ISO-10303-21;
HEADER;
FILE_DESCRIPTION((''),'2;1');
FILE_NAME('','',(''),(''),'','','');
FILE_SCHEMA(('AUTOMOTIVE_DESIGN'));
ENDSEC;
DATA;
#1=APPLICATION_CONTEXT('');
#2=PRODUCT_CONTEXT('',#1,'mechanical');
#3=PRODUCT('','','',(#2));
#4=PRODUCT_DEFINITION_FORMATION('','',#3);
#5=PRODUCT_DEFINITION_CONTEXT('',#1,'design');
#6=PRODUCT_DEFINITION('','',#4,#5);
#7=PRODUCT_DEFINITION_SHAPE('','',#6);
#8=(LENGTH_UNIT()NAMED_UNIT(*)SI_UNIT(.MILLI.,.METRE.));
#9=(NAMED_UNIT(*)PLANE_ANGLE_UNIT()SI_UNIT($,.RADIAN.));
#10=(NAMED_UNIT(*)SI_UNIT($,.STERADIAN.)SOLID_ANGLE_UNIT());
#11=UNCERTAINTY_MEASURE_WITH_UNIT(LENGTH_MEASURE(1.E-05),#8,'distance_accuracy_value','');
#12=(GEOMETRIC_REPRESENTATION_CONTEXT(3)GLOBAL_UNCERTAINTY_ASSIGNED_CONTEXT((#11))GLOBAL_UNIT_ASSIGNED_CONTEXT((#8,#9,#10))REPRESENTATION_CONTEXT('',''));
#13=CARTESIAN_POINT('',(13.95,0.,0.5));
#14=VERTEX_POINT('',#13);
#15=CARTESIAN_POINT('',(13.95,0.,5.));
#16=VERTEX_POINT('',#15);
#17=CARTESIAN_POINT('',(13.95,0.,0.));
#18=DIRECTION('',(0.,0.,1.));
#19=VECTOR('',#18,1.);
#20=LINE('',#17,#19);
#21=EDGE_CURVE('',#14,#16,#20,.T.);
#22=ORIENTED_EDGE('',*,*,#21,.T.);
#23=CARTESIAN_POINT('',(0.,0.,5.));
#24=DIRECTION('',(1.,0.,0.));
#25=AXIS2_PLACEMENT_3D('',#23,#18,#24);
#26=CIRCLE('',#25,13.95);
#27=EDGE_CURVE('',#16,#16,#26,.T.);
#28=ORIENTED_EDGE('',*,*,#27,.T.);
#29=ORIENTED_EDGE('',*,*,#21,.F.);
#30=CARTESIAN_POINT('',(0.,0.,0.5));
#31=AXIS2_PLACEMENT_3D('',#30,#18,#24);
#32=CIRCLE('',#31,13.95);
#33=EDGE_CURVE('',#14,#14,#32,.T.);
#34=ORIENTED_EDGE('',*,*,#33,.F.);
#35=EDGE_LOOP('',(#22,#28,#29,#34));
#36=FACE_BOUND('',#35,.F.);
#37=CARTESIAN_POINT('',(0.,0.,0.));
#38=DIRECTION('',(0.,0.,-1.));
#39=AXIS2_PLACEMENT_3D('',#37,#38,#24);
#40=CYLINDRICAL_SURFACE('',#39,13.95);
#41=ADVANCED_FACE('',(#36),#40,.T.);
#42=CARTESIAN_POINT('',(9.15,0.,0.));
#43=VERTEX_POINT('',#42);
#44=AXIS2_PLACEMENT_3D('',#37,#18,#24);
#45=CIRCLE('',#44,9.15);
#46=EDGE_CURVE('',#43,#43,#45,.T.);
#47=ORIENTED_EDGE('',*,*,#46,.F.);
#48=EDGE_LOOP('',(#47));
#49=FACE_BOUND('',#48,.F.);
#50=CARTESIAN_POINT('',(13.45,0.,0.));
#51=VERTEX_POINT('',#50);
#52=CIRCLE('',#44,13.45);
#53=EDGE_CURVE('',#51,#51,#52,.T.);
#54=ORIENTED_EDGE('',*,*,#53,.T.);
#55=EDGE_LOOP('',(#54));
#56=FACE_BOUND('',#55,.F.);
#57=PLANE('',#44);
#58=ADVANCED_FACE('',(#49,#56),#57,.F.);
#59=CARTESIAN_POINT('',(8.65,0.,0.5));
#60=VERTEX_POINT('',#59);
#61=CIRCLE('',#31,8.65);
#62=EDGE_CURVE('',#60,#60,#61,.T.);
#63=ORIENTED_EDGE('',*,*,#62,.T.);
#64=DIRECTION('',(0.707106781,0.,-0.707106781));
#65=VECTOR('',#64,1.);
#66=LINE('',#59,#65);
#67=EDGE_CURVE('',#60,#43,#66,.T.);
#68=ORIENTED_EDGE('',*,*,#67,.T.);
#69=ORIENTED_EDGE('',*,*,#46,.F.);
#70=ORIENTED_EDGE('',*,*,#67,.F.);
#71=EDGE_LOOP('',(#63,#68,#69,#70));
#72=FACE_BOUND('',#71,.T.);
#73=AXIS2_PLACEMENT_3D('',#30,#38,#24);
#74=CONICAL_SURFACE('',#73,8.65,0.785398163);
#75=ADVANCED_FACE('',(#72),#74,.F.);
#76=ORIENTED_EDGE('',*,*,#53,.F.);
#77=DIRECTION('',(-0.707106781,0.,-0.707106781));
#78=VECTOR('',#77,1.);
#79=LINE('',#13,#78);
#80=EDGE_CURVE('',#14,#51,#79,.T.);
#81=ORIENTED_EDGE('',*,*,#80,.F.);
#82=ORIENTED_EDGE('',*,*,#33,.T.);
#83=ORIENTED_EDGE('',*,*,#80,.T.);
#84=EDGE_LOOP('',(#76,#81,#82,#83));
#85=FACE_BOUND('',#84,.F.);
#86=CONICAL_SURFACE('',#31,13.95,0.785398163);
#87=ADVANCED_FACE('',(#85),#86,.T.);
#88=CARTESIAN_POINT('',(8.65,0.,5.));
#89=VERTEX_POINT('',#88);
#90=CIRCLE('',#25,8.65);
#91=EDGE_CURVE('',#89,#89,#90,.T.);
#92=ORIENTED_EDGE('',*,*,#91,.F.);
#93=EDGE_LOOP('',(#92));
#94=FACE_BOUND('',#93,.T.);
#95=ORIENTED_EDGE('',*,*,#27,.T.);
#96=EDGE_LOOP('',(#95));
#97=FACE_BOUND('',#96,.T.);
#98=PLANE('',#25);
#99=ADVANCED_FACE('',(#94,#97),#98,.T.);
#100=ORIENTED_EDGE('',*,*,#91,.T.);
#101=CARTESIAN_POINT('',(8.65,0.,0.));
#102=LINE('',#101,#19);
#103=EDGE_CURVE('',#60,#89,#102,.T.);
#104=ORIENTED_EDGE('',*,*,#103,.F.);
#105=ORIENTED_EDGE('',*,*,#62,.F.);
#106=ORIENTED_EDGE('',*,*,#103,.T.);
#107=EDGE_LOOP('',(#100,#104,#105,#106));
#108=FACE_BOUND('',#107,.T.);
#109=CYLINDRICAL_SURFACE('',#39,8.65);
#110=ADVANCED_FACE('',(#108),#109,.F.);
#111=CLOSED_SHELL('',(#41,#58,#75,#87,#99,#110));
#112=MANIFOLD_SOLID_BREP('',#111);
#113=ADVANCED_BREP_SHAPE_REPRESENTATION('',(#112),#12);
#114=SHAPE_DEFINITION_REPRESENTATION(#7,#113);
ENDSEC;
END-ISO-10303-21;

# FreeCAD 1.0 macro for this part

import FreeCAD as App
import Part
import Sketcher


def edges_at(feature, points):
    """Names of the edges that pass closest to the given points."""
    edges = feature.Shape.Edges
    near = lambda p: min(range(len(edges)), key=lambda i: edges[i].distToShape(Part.Vertex(*p))[0])
    return sorted({f"Edge{near(p) + 1}" for p in points})

doc = App.newDocument("Part")
params = doc.addObject("Spreadsheet::Sheet", "Params")
for row, (alias, value) in enumerate([
    ("sketch1_diameter", "27.9 mm"),
    ("sketch1_diameter2", "17.3 mm"),
    ("pad1_length", "5 mm"),
    ("chamfer_size", "0.5 mm"),
], start=1):
    params.set(f"A{row}", alias)
    params.set(f"B{row}", "=" + value)
    params.setAlias(f"B{row}", alias)

body = doc.addObject("PartDesign::Body", "Body")

sketch1 = body.newObject("Sketcher::SketchObject", "Sketch")
sketch1.AttachmentSupport = (doc.getObject("XY_Plane"), [""])
sketch1.MapMode = "FlatFace"
sketch1.addGeometry([
    Part.Circle(App.Vector(0, 0, 0), App.Vector(0, 0, 1), 13.95),
    Part.Circle(App.Vector(0, 0, 0), App.Vector(0, 0, 1), 8.65),
], False)
sketch1.addConstraint([
    Sketcher.Constraint("Coincident", 0, 3, -1, 1),
    Sketcher.Constraint("Coincident", 1, 3, -1, 1),
    Sketcher.Constraint("Diameter", 0, 27.9),
    Sketcher.Constraint("Diameter", 1, 17.3),
])
sketch1.setExpression("Constraints[2]", "Params.sketch1_diameter")
sketch1.setExpression("Constraints[3]", "Params.sketch1_diameter2")
pad1 = body.newObject("PartDesign::Pad", "Pad")
pad1.Profile = sketch1
pad1.setExpression("Length", "Params.pad1_length")
doc.recompute()

chamfer = body.newObject("PartDesign::Chamfer", "Chamfer")
chamfer.Base = (pad1, edges_at(pad1, [(-8.65, 0, 0), (-13.95, 0, 0)]))
chamfer.setExpression("Size", "Params.chamfer_size")

doc.recompute()
